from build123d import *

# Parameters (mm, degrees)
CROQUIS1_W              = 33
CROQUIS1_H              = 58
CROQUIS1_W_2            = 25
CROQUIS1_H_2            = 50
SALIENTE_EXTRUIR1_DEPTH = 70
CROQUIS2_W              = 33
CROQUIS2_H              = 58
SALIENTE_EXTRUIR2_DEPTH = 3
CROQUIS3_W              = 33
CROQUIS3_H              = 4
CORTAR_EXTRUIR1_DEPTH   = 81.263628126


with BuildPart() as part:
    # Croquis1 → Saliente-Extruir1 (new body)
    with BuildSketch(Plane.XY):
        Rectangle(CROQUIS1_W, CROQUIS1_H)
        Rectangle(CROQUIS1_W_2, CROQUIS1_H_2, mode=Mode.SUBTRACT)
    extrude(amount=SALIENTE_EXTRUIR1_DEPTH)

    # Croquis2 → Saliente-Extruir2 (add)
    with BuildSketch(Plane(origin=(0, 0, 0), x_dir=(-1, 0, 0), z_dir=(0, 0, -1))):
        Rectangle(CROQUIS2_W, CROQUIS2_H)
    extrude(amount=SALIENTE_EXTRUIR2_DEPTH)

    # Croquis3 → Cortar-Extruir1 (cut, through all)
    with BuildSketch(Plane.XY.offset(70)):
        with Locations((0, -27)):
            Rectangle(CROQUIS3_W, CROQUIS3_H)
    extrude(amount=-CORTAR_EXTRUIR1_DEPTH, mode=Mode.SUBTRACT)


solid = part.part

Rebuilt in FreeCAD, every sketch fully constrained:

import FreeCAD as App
import Part
import Sketcher

V = App.Vector

doc = App.newDocument("Part")
body = doc.addObject("PartDesign::Body", "Body")

# Sketch on XY plane
sketch1 = body.newObject("Sketcher::SketchObject", "Sketch")
sketch1.AttachmentSupport = (doc.getObject("XY_Plane"), [""])
sketch1.MapMode = "FlatFace"
sketch1.addGeometry([
    Part.LineSegment(V(-16.5, 29, 0), V(-16.5, -29, 0)),  # 0
    Part.LineSegment(V(-16.5, -29, 0), V(16.5, -29, 0)),  # 1
    Part.LineSegment(V(16.5, -29, 0), V(16.5, 29, 0)),  # 2
    Part.LineSegment(V(16.5, 29, 0), V(-16.5, 29, 0)),  # 3
    Part.LineSegment(V(12.5, -25, 0), V(-12.5, -25, 0)),  # 4
    Part.LineSegment(V(-12.5, -25, 0), V(-12.5, 25, 0)),  # 5
    Part.LineSegment(V(-12.5, 25, 0), V(12.5, 25, 0)),  # 6
    Part.LineSegment(V(12.5, 25, 0), V(12.5, -25, 0)),  # 7
], False)
sketch1.addConstraint([
    Sketcher.Constraint("Coincident", 0, 2, 1, 1),
    Sketcher.Constraint("Coincident", 1, 2, 2, 1),
    Sketcher.Constraint("Coincident", 2, 2, 3, 1),
    Sketcher.Constraint("Coincident", 3, 2, 0, 1),
    Sketcher.Constraint("Coincident", 4, 2, 5, 1),
    Sketcher.Constraint("Coincident", 5, 2, 6, 1),
    Sketcher.Constraint("Coincident", 6, 2, 7, 1),
    Sketcher.Constraint("Coincident", 7, 2, 4, 1),
    Sketcher.Constraint("Vertical", 0),
    Sketcher.Constraint("Horizontal", 1),
    Sketcher.Constraint("Vertical", 2),
    Sketcher.Constraint("Horizontal", 3),
    Sketcher.Constraint("Horizontal", 4),
    Sketcher.Constraint("Vertical", 5),
    Sketcher.Constraint("Horizontal", 6),
    Sketcher.Constraint("Vertical", 7),
    Sketcher.Constraint("Symmetric", 0, 2, 2, 2, -1, 1),
    Sketcher.Constraint("Symmetric", 4, 2, 6, 2, -1, 1),
    Sketcher.Constraint("DistanceX", 1, 1, 1, 2, 33.0),
    Sketcher.Constraint("DistanceX", 4, 2, 4, 1, 25.0),
    Sketcher.Constraint("DistanceY", 0, 2, 0, 1, 58.0),
    Sketcher.Constraint("DistanceY", 5, 1, 5, 2, 50.0),
])
pad1 = body.newObject("PartDesign::Pad", "Pad")
pad1.Profile = sketch1
pad1.Length = 70

# Sketch on XY plane
sketch2 = body.newObject("Sketcher::SketchObject", "Sketch001")
sketch2.AttachmentSupport = (doc.getObject("XY_Plane"), [""])
sketch2.MapMode = "FlatFace"
sketch2.addGeometry([
    Part.LineSegment(V(16.5, 29, 0), V(16.5, -29, 0)),
    Part.LineSegment(V(16.5, -29, 0), V(-16.5, -29, 0)),
    Part.LineSegment(V(-16.5, -29, 0), V(-16.5, 29, 0)),
    Part.LineSegment(V(-16.5, 29, 0), V(16.5, 29, 0)),
], False)
sketch2.addConstraint([
    Sketcher.Constraint("Coincident", 0, 2, 1, 1),
    Sketcher.Constraint("Coincident", 1, 2, 2, 1),
    Sketcher.Constraint("Coincident", 2, 2, 3, 1),
    Sketcher.Constraint("Coincident", 3, 2, 0, 1),
    Sketcher.Constraint("Vertical", 0),
    Sketcher.Constraint("Horizontal", 1),
    Sketcher.Constraint("Vertical", 2),
    Sketcher.Constraint("Horizontal", 3),
    Sketcher.Constraint("Symmetric", 0, 2, 2, 2, -1, 1),
    Sketcher.Constraint("DistanceX", 1, 2, 1, 1, 33.0),
    Sketcher.Constraint("DistanceY", 0, 2, 0, 1, 58.0),
])
pad2 = body.newObject("PartDesign::Pad", "Pad001")
pad2.Profile = sketch2
pad2.Length = 3
pad2.Reversed = True

# Sketch on XY plane
sketch3 = body.newObject("Sketcher::SketchObject", "Sketch002")
sketch3.AttachmentSupport = (doc.getObject("XY_Plane"), [""])
sketch3.MapMode = "FlatFace"
sketch3.AttachmentOffset = App.Placement(V(0, 0, 70), App.Rotation())
sketch3.addGeometry([
    Part.LineSegment(V(-16.5, -25, 0), V(-16.5, -29, 0)),
    Part.LineSegment(V(-16.5, -29, 0), V(16.5, -29, 0)),
    Part.LineSegment(V(16.5, -29, 0), V(16.5, -25, 0)),
    Part.LineSegment(V(16.5, -25, 0), V(-16.5, -25, 0)),
], False)
sketch3.addConstraint([
    Sketcher.Constraint("Coincident", 0, 2, 1, 1),
    Sketcher.Constraint("Coincident", 1, 2, 2, 1),
    Sketcher.Constraint("Coincident", 2, 2, 3, 1),
    Sketcher.Constraint("Coincident", 3, 2, 0, 1),
    Sketcher.Constraint("Vertical", 0),
    Sketcher.Constraint("Horizontal", 1),
    Sketcher.Constraint("Vertical", 2),
    Sketcher.Constraint("Horizontal", 3),
    Sketcher.Constraint("DistanceX", 1, 1, 1, 2, 33.0),
    Sketcher.Constraint("DistanceY", 0, 2, 0, 1, 4.0),
    Sketcher.Constraint("DistanceY", 0, 2, -1, 1, 29.0),
    Sketcher.Constraint("DistanceX", 0, 2, -1, 1, 16.5),
])
pocket1 = body.newObject("PartDesign::Pocket", "Pocket")
pocket1.Profile = sketch3
pocket1.Type = "ThroughAll"

doc.recompute()
